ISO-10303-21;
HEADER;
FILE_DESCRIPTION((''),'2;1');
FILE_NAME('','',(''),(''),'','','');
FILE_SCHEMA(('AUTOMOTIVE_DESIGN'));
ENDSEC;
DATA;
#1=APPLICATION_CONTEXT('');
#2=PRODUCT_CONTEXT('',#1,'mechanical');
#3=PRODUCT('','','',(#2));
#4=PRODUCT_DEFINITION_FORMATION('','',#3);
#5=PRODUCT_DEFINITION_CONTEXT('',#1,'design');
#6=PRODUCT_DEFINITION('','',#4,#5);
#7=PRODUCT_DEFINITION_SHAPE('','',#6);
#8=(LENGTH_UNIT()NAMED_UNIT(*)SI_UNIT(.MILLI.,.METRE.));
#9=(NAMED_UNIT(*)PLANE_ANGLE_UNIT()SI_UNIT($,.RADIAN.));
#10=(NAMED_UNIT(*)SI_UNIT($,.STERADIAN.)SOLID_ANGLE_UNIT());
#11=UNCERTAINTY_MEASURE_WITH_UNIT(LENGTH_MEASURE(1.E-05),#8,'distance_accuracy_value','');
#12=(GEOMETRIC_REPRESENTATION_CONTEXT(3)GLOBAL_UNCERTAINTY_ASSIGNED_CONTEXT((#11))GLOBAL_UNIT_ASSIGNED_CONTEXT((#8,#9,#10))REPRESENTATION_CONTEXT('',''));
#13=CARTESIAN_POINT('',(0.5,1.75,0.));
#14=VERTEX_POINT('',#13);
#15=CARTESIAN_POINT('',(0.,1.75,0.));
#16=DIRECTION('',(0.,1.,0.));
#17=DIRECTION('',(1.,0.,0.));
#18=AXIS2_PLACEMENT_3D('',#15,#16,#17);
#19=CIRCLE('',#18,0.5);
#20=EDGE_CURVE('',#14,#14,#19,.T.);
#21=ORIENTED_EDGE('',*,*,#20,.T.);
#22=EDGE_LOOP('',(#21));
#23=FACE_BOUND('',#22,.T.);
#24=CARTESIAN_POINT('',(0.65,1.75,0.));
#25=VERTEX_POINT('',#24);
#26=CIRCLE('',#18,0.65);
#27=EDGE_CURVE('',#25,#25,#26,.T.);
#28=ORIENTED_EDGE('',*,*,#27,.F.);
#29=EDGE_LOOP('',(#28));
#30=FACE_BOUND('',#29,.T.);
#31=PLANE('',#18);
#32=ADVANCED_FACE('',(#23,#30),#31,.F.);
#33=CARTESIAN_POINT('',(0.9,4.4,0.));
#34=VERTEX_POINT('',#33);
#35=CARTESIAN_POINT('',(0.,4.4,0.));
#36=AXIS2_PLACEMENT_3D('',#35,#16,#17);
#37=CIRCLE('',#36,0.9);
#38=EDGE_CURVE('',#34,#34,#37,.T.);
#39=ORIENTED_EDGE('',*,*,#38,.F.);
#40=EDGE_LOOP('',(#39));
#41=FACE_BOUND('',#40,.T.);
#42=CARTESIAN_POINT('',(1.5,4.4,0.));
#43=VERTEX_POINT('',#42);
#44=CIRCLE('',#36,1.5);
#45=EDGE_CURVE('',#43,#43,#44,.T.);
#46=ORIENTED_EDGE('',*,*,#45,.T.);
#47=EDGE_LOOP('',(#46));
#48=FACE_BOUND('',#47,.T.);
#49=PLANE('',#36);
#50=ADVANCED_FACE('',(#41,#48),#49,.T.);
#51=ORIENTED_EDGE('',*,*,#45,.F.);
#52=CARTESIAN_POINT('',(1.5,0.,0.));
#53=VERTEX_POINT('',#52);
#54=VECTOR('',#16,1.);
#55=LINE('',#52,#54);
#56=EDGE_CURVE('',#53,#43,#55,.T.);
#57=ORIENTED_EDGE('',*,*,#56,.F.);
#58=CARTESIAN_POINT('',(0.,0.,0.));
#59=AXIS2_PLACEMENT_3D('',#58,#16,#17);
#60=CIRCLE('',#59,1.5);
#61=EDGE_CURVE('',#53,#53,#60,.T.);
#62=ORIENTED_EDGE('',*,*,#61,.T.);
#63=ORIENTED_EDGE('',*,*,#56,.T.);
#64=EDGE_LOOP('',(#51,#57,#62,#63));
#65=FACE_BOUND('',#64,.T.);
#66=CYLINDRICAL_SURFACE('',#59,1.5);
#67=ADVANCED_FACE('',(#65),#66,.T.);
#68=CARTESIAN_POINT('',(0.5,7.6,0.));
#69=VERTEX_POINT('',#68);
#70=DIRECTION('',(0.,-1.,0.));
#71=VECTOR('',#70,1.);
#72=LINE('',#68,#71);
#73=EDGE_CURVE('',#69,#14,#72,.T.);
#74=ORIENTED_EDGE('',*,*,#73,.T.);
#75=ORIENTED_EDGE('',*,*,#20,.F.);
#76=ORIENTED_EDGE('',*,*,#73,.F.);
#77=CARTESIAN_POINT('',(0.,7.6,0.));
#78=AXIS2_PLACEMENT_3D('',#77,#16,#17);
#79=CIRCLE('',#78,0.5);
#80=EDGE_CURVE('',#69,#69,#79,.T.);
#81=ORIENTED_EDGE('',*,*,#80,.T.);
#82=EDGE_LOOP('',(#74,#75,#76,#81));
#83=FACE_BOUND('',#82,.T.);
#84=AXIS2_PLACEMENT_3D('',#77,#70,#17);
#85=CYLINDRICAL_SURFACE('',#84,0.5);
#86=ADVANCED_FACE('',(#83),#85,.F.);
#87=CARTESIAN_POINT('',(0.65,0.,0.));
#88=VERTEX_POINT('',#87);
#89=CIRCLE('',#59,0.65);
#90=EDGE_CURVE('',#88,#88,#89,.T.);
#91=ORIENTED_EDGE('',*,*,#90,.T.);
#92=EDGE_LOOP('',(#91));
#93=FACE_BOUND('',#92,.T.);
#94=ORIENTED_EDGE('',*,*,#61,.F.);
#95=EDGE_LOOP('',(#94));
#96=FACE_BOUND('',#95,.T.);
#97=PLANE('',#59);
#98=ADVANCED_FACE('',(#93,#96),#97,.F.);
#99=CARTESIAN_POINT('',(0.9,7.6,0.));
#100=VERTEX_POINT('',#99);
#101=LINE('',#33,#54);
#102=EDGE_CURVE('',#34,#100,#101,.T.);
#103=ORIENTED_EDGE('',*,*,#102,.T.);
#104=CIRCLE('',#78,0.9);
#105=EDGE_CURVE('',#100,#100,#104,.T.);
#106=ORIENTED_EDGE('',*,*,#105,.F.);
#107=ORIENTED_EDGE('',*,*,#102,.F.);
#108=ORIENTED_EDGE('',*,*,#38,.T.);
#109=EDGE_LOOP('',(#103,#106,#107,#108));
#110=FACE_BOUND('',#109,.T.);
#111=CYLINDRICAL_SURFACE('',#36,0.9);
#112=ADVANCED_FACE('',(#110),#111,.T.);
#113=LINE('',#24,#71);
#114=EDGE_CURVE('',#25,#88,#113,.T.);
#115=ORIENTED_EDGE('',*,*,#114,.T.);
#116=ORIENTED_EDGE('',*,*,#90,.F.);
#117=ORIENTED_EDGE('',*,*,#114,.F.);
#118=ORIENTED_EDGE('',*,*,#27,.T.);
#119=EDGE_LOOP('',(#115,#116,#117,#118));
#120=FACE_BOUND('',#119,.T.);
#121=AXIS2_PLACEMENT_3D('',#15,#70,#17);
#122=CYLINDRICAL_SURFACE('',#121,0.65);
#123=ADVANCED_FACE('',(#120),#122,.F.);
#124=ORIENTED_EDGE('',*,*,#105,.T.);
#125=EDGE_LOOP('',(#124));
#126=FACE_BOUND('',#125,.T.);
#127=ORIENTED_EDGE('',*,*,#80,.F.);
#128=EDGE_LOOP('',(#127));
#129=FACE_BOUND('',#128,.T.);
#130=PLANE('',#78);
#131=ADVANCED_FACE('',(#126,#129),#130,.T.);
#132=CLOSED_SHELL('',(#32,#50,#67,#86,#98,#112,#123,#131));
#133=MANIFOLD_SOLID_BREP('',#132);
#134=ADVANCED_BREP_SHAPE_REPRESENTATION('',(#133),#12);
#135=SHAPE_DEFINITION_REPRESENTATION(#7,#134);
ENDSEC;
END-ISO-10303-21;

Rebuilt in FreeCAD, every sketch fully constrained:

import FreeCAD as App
import Part
import Sketcher
from FreeCAD import Vector
Q = App.Units.Quantity


def add_polygon(sketch, points):
    """Adds a closed chain of lines whose ends are joined by coincident constraints."""
    first, n = sketch.GeometryCount, len(points)
    for a, b in zip(points, points[1:] + points[:1]):
        sketch.addGeometry(Part.LineSegment(App.Vector(*a, 0), App.Vector(*b, 0)), False)
    for i in range(n):
        sketch.addConstraint(Sketcher.Constraint("Coincident", first + i, 2, first + (i + 1) % n, 1))

doc = App.newDocument("Part")
body = doc.addObject("PartDesign::Body", "Body")

# Sketch on XY plane
sketch1 = body.newObject("Sketcher::SketchObject", "Sketch")
sketch1.AttachmentSupport = (doc.getObject("XY_Plane"), [""])
sketch1.MapMode = "FlatFace"
add_polygon(sketch1, [(0.65, 1.75), (0.65, 0), (1.5, 0), (1.5, 4.4), (0.9, 4.4), (0.9, 7.6), (0.5, 7.6), (0.5, 1.75)])  # lines 0-7
sketch1.addConstraint([
    Sketcher.Constraint("Vertical", 0),
    Sketcher.Constraint("Horizontal", 1),
    Sketcher.Constraint("Vertical", 2),
    Sketcher.Constraint("Horizontal", 3),
    Sketcher.Constraint("Vertical", 4),
    Sketcher.Constraint("Horizontal", 5),
    Sketcher.Constraint("Vertical", 6),
    Sketcher.Constraint("Horizontal", 7),
    Sketcher.Constraint("PointOnObject", 0, 2, -1),
    Sketcher.Constraint("DistanceY", 2, 1, 2, 2, Q("4.4 mm")),
    Sketcher.Constraint("DistanceX", 5, 2, 2, 2, Q("1 mm")),
    Sketcher.Constraint("DistanceY", 0, 2, 0, 1, Q("1.75 mm")),
    Sketcher.Constraint("DistanceY", -1, 1, 4, 2, Q("7.6 mm")),
    Sketcher.Constraint("DistanceX", 3, 2, 3, 1, Q("0.6 mm")),
    Sketcher.Constraint("DistanceX", 1, 1, 1, 2, Q("0.85 mm")),
    Sketcher.Constraint("DistanceX", -1, 1, 1, 2, Q("1.5 mm")),
])
revolution = body.newObject("PartDesign::Revolution", "Revolution")
revolution.Profile = sketch1
revolution.ReferenceAxis = (sketch1, ["V_Axis"])
revolution.Angle = 360

doc.recompute()
